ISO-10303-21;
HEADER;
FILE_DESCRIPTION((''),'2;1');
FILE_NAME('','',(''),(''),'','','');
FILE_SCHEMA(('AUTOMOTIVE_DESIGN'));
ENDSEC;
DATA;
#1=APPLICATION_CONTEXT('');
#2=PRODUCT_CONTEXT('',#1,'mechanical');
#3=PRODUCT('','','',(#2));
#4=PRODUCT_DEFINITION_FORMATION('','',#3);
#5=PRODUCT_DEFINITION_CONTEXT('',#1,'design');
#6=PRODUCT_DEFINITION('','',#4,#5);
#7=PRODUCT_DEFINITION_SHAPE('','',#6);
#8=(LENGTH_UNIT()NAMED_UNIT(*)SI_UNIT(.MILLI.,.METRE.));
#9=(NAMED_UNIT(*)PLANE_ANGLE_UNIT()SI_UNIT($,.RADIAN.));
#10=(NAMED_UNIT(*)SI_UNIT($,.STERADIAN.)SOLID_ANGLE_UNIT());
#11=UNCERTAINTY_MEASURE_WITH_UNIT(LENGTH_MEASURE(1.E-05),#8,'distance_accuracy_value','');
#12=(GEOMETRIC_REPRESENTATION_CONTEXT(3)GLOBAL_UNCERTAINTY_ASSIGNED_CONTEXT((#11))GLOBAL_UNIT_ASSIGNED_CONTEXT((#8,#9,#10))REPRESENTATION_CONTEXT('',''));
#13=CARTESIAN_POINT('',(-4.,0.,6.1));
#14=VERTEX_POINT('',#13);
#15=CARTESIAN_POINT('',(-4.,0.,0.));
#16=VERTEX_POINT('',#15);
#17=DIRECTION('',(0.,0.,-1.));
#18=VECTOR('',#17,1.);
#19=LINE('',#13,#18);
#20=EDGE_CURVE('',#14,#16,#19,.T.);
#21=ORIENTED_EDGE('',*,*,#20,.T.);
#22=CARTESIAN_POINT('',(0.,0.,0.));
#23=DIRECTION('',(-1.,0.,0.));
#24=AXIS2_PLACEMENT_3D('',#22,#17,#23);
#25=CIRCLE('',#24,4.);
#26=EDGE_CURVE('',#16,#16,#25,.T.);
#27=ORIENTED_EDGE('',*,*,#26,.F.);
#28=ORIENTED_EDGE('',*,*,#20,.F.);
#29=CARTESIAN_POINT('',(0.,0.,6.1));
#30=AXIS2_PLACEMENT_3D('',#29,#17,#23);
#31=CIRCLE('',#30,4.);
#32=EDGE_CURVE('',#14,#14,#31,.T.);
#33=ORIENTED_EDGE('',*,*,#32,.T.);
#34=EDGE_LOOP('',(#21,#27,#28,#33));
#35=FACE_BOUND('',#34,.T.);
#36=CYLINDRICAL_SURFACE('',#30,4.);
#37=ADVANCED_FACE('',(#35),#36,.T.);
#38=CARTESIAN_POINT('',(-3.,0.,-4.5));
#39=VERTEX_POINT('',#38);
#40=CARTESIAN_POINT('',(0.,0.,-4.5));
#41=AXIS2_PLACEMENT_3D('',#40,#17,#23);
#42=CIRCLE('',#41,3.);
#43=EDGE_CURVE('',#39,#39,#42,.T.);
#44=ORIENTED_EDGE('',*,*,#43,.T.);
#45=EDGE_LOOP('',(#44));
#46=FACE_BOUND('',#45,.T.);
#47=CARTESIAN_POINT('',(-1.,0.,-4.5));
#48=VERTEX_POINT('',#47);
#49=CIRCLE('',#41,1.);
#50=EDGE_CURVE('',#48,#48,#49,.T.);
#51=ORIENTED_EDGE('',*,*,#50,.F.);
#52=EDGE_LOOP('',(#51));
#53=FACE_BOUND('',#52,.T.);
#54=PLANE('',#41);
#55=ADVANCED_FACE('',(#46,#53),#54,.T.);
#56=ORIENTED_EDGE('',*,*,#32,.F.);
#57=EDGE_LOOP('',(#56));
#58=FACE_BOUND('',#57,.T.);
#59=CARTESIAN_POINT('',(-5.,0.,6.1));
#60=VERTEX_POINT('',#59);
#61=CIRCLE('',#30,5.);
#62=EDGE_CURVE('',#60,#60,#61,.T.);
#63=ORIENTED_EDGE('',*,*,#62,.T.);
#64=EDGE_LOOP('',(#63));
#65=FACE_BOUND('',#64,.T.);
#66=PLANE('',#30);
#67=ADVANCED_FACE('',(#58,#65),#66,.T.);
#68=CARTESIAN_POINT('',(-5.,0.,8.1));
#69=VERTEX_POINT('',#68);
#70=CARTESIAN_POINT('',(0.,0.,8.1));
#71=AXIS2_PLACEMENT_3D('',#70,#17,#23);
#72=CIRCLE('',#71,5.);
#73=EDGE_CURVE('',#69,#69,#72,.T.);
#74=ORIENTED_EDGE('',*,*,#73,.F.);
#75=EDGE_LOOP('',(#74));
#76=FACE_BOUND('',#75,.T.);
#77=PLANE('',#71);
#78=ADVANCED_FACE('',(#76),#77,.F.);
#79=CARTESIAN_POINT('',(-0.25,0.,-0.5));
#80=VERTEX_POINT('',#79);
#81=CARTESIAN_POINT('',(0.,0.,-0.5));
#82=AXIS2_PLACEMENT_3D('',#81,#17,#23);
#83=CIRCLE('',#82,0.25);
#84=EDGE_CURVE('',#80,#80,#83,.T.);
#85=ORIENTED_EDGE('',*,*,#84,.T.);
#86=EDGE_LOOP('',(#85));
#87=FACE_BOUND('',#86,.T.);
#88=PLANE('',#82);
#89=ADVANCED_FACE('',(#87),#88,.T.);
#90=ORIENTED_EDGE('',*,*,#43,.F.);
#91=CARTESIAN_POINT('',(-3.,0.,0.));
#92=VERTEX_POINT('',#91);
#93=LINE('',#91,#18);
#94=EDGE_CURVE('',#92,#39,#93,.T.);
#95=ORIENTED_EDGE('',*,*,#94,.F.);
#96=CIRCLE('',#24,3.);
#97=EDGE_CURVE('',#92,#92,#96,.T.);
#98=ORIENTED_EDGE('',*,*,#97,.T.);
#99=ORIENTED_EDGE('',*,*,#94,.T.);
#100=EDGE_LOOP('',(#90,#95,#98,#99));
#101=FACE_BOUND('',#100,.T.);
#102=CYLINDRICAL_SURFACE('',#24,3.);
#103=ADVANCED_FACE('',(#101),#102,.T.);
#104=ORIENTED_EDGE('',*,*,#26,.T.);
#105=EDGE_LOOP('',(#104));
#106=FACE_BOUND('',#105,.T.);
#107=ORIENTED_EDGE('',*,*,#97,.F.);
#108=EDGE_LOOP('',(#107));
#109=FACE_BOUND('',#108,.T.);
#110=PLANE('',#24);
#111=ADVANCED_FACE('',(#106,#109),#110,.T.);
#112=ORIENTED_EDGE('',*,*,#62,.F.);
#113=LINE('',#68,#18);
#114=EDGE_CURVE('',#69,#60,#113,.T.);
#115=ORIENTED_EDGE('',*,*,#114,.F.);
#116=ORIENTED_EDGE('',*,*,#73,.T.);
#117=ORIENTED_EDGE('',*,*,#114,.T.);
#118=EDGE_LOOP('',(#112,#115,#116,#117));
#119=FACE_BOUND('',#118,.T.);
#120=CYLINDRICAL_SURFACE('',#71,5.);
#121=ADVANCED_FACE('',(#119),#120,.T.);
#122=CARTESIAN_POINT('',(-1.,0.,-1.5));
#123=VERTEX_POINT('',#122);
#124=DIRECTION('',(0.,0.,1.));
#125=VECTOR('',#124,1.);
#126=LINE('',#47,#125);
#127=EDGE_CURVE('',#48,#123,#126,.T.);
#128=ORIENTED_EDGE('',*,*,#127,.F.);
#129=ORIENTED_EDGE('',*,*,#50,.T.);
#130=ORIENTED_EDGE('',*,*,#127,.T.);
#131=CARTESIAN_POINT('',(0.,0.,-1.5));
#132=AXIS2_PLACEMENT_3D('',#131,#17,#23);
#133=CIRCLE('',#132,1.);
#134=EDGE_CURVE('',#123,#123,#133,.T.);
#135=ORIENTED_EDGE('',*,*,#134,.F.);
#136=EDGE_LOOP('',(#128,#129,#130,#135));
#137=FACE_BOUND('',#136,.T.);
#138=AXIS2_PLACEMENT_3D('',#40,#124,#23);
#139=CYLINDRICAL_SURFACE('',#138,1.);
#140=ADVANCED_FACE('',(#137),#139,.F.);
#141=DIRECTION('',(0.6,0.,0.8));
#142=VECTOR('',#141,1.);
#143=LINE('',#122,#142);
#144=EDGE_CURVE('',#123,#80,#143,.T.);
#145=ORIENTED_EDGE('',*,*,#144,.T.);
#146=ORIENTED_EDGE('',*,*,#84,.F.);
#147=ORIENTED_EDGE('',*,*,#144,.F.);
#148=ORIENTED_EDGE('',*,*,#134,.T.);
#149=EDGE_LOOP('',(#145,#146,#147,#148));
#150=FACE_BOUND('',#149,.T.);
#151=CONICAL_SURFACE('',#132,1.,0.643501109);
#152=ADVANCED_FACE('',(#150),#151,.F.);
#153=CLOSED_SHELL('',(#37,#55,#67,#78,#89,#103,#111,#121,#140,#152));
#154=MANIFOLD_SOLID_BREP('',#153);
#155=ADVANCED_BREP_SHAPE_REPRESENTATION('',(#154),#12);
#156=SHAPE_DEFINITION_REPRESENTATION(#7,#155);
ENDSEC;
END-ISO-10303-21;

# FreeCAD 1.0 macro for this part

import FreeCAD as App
import Part
import Sketcher
from FreeCAD import Vector


def add_polygon(sketch, points):
    """Adds a closed chain of lines whose ends are joined by coincident constraints."""
    first, n = sketch.GeometryCount, len(points)
    for a, b in zip(points, points[1:] + points[:1]):
        sketch.addGeometry(Part.LineSegment(App.Vector(*a, 0), App.Vector(*b, 0)), False)
    for i in range(n):
        sketch.addConstraint(Sketcher.Constraint("Coincident", first + i, 2, first + (i + 1) % n, 1))

doc = App.newDocument("Part")
body = doc.addObject("PartDesign::Body", "Body")

# Sketch on XZ plane
sketch1 = body.newObject("Sketcher::SketchObject", "Sketch")
sketch1.AttachmentSupport = (doc.getObject("XZ_Plane"), [""])
sketch1.MapMode = "FlatFace"
add_polygon(sketch1, [(0, 8.1), (-5, 8.1), (-5, 6.1), (-4, 6.1), (-4, 0), (-3, 0), (-3, -4.5), (-1, -4.5), (-1, -1.5), (-0.25, -0.5), (0, -0.5)])  # lines 0-10
sketch1.addConstraint([
    Sketcher.Constraint("Horizontal", 0),
    Sketcher.Constraint("Vertical", 1),
    Sketcher.Constraint("Horizontal", 2),
    Sketcher.Constraint("Vertical", 3),
    Sketcher.Constraint("Horizontal", 4),
    Sketcher.Constraint("Vertical", 5),
    Sketcher.Constraint("Horizontal", 6),
    Sketcher.Constraint("Vertical", 7),
    Sketcher.Constraint("Horizontal", 9),
    Sketcher.Constraint("Vertical", 10),
    Sketcher.Constraint("PointOnObject", 3, 2, -1),
    Sketcher.Constraint("PointOnObject", 9, 2, -2),
    Sketcher.Constraint("Equal", 2, 4),
    Sketcher.Constraint("Equal", 6, 1),
    Sketcher.Constraint("DistanceX", 0, 2, 0, 1, 5.0),
    Sketcher.Constraint("DistanceX", 2, 1, 2, 2, 1.0),
    Sketcher.Constraint("DistanceX", 6, 1, 6, 2, 2.0),
    Sketcher.Constraint("DistanceY", 7, 1, 7, 2, 3.0),
    Sketcher.Constraint("DistanceY", 3, 2, 3, 1, 6.1),
    Sketcher.Constraint("DistanceY", 5, 2, 5, 1, 4.5),
    Sketcher.Constraint("DistanceY", 10, 1, 10, 2, 8.6),
    Sketcher.Constraint("DistanceX", 9, 1, 9, 2, 0.25),
])
revolution = body.newObject("PartDesign::Revolution", "Revolution")
revolution.Profile = sketch1
revolution.ReferenceAxis = (sketch1, ["V_Axis"])
revolution.Angle = 360

doc.recompute()
